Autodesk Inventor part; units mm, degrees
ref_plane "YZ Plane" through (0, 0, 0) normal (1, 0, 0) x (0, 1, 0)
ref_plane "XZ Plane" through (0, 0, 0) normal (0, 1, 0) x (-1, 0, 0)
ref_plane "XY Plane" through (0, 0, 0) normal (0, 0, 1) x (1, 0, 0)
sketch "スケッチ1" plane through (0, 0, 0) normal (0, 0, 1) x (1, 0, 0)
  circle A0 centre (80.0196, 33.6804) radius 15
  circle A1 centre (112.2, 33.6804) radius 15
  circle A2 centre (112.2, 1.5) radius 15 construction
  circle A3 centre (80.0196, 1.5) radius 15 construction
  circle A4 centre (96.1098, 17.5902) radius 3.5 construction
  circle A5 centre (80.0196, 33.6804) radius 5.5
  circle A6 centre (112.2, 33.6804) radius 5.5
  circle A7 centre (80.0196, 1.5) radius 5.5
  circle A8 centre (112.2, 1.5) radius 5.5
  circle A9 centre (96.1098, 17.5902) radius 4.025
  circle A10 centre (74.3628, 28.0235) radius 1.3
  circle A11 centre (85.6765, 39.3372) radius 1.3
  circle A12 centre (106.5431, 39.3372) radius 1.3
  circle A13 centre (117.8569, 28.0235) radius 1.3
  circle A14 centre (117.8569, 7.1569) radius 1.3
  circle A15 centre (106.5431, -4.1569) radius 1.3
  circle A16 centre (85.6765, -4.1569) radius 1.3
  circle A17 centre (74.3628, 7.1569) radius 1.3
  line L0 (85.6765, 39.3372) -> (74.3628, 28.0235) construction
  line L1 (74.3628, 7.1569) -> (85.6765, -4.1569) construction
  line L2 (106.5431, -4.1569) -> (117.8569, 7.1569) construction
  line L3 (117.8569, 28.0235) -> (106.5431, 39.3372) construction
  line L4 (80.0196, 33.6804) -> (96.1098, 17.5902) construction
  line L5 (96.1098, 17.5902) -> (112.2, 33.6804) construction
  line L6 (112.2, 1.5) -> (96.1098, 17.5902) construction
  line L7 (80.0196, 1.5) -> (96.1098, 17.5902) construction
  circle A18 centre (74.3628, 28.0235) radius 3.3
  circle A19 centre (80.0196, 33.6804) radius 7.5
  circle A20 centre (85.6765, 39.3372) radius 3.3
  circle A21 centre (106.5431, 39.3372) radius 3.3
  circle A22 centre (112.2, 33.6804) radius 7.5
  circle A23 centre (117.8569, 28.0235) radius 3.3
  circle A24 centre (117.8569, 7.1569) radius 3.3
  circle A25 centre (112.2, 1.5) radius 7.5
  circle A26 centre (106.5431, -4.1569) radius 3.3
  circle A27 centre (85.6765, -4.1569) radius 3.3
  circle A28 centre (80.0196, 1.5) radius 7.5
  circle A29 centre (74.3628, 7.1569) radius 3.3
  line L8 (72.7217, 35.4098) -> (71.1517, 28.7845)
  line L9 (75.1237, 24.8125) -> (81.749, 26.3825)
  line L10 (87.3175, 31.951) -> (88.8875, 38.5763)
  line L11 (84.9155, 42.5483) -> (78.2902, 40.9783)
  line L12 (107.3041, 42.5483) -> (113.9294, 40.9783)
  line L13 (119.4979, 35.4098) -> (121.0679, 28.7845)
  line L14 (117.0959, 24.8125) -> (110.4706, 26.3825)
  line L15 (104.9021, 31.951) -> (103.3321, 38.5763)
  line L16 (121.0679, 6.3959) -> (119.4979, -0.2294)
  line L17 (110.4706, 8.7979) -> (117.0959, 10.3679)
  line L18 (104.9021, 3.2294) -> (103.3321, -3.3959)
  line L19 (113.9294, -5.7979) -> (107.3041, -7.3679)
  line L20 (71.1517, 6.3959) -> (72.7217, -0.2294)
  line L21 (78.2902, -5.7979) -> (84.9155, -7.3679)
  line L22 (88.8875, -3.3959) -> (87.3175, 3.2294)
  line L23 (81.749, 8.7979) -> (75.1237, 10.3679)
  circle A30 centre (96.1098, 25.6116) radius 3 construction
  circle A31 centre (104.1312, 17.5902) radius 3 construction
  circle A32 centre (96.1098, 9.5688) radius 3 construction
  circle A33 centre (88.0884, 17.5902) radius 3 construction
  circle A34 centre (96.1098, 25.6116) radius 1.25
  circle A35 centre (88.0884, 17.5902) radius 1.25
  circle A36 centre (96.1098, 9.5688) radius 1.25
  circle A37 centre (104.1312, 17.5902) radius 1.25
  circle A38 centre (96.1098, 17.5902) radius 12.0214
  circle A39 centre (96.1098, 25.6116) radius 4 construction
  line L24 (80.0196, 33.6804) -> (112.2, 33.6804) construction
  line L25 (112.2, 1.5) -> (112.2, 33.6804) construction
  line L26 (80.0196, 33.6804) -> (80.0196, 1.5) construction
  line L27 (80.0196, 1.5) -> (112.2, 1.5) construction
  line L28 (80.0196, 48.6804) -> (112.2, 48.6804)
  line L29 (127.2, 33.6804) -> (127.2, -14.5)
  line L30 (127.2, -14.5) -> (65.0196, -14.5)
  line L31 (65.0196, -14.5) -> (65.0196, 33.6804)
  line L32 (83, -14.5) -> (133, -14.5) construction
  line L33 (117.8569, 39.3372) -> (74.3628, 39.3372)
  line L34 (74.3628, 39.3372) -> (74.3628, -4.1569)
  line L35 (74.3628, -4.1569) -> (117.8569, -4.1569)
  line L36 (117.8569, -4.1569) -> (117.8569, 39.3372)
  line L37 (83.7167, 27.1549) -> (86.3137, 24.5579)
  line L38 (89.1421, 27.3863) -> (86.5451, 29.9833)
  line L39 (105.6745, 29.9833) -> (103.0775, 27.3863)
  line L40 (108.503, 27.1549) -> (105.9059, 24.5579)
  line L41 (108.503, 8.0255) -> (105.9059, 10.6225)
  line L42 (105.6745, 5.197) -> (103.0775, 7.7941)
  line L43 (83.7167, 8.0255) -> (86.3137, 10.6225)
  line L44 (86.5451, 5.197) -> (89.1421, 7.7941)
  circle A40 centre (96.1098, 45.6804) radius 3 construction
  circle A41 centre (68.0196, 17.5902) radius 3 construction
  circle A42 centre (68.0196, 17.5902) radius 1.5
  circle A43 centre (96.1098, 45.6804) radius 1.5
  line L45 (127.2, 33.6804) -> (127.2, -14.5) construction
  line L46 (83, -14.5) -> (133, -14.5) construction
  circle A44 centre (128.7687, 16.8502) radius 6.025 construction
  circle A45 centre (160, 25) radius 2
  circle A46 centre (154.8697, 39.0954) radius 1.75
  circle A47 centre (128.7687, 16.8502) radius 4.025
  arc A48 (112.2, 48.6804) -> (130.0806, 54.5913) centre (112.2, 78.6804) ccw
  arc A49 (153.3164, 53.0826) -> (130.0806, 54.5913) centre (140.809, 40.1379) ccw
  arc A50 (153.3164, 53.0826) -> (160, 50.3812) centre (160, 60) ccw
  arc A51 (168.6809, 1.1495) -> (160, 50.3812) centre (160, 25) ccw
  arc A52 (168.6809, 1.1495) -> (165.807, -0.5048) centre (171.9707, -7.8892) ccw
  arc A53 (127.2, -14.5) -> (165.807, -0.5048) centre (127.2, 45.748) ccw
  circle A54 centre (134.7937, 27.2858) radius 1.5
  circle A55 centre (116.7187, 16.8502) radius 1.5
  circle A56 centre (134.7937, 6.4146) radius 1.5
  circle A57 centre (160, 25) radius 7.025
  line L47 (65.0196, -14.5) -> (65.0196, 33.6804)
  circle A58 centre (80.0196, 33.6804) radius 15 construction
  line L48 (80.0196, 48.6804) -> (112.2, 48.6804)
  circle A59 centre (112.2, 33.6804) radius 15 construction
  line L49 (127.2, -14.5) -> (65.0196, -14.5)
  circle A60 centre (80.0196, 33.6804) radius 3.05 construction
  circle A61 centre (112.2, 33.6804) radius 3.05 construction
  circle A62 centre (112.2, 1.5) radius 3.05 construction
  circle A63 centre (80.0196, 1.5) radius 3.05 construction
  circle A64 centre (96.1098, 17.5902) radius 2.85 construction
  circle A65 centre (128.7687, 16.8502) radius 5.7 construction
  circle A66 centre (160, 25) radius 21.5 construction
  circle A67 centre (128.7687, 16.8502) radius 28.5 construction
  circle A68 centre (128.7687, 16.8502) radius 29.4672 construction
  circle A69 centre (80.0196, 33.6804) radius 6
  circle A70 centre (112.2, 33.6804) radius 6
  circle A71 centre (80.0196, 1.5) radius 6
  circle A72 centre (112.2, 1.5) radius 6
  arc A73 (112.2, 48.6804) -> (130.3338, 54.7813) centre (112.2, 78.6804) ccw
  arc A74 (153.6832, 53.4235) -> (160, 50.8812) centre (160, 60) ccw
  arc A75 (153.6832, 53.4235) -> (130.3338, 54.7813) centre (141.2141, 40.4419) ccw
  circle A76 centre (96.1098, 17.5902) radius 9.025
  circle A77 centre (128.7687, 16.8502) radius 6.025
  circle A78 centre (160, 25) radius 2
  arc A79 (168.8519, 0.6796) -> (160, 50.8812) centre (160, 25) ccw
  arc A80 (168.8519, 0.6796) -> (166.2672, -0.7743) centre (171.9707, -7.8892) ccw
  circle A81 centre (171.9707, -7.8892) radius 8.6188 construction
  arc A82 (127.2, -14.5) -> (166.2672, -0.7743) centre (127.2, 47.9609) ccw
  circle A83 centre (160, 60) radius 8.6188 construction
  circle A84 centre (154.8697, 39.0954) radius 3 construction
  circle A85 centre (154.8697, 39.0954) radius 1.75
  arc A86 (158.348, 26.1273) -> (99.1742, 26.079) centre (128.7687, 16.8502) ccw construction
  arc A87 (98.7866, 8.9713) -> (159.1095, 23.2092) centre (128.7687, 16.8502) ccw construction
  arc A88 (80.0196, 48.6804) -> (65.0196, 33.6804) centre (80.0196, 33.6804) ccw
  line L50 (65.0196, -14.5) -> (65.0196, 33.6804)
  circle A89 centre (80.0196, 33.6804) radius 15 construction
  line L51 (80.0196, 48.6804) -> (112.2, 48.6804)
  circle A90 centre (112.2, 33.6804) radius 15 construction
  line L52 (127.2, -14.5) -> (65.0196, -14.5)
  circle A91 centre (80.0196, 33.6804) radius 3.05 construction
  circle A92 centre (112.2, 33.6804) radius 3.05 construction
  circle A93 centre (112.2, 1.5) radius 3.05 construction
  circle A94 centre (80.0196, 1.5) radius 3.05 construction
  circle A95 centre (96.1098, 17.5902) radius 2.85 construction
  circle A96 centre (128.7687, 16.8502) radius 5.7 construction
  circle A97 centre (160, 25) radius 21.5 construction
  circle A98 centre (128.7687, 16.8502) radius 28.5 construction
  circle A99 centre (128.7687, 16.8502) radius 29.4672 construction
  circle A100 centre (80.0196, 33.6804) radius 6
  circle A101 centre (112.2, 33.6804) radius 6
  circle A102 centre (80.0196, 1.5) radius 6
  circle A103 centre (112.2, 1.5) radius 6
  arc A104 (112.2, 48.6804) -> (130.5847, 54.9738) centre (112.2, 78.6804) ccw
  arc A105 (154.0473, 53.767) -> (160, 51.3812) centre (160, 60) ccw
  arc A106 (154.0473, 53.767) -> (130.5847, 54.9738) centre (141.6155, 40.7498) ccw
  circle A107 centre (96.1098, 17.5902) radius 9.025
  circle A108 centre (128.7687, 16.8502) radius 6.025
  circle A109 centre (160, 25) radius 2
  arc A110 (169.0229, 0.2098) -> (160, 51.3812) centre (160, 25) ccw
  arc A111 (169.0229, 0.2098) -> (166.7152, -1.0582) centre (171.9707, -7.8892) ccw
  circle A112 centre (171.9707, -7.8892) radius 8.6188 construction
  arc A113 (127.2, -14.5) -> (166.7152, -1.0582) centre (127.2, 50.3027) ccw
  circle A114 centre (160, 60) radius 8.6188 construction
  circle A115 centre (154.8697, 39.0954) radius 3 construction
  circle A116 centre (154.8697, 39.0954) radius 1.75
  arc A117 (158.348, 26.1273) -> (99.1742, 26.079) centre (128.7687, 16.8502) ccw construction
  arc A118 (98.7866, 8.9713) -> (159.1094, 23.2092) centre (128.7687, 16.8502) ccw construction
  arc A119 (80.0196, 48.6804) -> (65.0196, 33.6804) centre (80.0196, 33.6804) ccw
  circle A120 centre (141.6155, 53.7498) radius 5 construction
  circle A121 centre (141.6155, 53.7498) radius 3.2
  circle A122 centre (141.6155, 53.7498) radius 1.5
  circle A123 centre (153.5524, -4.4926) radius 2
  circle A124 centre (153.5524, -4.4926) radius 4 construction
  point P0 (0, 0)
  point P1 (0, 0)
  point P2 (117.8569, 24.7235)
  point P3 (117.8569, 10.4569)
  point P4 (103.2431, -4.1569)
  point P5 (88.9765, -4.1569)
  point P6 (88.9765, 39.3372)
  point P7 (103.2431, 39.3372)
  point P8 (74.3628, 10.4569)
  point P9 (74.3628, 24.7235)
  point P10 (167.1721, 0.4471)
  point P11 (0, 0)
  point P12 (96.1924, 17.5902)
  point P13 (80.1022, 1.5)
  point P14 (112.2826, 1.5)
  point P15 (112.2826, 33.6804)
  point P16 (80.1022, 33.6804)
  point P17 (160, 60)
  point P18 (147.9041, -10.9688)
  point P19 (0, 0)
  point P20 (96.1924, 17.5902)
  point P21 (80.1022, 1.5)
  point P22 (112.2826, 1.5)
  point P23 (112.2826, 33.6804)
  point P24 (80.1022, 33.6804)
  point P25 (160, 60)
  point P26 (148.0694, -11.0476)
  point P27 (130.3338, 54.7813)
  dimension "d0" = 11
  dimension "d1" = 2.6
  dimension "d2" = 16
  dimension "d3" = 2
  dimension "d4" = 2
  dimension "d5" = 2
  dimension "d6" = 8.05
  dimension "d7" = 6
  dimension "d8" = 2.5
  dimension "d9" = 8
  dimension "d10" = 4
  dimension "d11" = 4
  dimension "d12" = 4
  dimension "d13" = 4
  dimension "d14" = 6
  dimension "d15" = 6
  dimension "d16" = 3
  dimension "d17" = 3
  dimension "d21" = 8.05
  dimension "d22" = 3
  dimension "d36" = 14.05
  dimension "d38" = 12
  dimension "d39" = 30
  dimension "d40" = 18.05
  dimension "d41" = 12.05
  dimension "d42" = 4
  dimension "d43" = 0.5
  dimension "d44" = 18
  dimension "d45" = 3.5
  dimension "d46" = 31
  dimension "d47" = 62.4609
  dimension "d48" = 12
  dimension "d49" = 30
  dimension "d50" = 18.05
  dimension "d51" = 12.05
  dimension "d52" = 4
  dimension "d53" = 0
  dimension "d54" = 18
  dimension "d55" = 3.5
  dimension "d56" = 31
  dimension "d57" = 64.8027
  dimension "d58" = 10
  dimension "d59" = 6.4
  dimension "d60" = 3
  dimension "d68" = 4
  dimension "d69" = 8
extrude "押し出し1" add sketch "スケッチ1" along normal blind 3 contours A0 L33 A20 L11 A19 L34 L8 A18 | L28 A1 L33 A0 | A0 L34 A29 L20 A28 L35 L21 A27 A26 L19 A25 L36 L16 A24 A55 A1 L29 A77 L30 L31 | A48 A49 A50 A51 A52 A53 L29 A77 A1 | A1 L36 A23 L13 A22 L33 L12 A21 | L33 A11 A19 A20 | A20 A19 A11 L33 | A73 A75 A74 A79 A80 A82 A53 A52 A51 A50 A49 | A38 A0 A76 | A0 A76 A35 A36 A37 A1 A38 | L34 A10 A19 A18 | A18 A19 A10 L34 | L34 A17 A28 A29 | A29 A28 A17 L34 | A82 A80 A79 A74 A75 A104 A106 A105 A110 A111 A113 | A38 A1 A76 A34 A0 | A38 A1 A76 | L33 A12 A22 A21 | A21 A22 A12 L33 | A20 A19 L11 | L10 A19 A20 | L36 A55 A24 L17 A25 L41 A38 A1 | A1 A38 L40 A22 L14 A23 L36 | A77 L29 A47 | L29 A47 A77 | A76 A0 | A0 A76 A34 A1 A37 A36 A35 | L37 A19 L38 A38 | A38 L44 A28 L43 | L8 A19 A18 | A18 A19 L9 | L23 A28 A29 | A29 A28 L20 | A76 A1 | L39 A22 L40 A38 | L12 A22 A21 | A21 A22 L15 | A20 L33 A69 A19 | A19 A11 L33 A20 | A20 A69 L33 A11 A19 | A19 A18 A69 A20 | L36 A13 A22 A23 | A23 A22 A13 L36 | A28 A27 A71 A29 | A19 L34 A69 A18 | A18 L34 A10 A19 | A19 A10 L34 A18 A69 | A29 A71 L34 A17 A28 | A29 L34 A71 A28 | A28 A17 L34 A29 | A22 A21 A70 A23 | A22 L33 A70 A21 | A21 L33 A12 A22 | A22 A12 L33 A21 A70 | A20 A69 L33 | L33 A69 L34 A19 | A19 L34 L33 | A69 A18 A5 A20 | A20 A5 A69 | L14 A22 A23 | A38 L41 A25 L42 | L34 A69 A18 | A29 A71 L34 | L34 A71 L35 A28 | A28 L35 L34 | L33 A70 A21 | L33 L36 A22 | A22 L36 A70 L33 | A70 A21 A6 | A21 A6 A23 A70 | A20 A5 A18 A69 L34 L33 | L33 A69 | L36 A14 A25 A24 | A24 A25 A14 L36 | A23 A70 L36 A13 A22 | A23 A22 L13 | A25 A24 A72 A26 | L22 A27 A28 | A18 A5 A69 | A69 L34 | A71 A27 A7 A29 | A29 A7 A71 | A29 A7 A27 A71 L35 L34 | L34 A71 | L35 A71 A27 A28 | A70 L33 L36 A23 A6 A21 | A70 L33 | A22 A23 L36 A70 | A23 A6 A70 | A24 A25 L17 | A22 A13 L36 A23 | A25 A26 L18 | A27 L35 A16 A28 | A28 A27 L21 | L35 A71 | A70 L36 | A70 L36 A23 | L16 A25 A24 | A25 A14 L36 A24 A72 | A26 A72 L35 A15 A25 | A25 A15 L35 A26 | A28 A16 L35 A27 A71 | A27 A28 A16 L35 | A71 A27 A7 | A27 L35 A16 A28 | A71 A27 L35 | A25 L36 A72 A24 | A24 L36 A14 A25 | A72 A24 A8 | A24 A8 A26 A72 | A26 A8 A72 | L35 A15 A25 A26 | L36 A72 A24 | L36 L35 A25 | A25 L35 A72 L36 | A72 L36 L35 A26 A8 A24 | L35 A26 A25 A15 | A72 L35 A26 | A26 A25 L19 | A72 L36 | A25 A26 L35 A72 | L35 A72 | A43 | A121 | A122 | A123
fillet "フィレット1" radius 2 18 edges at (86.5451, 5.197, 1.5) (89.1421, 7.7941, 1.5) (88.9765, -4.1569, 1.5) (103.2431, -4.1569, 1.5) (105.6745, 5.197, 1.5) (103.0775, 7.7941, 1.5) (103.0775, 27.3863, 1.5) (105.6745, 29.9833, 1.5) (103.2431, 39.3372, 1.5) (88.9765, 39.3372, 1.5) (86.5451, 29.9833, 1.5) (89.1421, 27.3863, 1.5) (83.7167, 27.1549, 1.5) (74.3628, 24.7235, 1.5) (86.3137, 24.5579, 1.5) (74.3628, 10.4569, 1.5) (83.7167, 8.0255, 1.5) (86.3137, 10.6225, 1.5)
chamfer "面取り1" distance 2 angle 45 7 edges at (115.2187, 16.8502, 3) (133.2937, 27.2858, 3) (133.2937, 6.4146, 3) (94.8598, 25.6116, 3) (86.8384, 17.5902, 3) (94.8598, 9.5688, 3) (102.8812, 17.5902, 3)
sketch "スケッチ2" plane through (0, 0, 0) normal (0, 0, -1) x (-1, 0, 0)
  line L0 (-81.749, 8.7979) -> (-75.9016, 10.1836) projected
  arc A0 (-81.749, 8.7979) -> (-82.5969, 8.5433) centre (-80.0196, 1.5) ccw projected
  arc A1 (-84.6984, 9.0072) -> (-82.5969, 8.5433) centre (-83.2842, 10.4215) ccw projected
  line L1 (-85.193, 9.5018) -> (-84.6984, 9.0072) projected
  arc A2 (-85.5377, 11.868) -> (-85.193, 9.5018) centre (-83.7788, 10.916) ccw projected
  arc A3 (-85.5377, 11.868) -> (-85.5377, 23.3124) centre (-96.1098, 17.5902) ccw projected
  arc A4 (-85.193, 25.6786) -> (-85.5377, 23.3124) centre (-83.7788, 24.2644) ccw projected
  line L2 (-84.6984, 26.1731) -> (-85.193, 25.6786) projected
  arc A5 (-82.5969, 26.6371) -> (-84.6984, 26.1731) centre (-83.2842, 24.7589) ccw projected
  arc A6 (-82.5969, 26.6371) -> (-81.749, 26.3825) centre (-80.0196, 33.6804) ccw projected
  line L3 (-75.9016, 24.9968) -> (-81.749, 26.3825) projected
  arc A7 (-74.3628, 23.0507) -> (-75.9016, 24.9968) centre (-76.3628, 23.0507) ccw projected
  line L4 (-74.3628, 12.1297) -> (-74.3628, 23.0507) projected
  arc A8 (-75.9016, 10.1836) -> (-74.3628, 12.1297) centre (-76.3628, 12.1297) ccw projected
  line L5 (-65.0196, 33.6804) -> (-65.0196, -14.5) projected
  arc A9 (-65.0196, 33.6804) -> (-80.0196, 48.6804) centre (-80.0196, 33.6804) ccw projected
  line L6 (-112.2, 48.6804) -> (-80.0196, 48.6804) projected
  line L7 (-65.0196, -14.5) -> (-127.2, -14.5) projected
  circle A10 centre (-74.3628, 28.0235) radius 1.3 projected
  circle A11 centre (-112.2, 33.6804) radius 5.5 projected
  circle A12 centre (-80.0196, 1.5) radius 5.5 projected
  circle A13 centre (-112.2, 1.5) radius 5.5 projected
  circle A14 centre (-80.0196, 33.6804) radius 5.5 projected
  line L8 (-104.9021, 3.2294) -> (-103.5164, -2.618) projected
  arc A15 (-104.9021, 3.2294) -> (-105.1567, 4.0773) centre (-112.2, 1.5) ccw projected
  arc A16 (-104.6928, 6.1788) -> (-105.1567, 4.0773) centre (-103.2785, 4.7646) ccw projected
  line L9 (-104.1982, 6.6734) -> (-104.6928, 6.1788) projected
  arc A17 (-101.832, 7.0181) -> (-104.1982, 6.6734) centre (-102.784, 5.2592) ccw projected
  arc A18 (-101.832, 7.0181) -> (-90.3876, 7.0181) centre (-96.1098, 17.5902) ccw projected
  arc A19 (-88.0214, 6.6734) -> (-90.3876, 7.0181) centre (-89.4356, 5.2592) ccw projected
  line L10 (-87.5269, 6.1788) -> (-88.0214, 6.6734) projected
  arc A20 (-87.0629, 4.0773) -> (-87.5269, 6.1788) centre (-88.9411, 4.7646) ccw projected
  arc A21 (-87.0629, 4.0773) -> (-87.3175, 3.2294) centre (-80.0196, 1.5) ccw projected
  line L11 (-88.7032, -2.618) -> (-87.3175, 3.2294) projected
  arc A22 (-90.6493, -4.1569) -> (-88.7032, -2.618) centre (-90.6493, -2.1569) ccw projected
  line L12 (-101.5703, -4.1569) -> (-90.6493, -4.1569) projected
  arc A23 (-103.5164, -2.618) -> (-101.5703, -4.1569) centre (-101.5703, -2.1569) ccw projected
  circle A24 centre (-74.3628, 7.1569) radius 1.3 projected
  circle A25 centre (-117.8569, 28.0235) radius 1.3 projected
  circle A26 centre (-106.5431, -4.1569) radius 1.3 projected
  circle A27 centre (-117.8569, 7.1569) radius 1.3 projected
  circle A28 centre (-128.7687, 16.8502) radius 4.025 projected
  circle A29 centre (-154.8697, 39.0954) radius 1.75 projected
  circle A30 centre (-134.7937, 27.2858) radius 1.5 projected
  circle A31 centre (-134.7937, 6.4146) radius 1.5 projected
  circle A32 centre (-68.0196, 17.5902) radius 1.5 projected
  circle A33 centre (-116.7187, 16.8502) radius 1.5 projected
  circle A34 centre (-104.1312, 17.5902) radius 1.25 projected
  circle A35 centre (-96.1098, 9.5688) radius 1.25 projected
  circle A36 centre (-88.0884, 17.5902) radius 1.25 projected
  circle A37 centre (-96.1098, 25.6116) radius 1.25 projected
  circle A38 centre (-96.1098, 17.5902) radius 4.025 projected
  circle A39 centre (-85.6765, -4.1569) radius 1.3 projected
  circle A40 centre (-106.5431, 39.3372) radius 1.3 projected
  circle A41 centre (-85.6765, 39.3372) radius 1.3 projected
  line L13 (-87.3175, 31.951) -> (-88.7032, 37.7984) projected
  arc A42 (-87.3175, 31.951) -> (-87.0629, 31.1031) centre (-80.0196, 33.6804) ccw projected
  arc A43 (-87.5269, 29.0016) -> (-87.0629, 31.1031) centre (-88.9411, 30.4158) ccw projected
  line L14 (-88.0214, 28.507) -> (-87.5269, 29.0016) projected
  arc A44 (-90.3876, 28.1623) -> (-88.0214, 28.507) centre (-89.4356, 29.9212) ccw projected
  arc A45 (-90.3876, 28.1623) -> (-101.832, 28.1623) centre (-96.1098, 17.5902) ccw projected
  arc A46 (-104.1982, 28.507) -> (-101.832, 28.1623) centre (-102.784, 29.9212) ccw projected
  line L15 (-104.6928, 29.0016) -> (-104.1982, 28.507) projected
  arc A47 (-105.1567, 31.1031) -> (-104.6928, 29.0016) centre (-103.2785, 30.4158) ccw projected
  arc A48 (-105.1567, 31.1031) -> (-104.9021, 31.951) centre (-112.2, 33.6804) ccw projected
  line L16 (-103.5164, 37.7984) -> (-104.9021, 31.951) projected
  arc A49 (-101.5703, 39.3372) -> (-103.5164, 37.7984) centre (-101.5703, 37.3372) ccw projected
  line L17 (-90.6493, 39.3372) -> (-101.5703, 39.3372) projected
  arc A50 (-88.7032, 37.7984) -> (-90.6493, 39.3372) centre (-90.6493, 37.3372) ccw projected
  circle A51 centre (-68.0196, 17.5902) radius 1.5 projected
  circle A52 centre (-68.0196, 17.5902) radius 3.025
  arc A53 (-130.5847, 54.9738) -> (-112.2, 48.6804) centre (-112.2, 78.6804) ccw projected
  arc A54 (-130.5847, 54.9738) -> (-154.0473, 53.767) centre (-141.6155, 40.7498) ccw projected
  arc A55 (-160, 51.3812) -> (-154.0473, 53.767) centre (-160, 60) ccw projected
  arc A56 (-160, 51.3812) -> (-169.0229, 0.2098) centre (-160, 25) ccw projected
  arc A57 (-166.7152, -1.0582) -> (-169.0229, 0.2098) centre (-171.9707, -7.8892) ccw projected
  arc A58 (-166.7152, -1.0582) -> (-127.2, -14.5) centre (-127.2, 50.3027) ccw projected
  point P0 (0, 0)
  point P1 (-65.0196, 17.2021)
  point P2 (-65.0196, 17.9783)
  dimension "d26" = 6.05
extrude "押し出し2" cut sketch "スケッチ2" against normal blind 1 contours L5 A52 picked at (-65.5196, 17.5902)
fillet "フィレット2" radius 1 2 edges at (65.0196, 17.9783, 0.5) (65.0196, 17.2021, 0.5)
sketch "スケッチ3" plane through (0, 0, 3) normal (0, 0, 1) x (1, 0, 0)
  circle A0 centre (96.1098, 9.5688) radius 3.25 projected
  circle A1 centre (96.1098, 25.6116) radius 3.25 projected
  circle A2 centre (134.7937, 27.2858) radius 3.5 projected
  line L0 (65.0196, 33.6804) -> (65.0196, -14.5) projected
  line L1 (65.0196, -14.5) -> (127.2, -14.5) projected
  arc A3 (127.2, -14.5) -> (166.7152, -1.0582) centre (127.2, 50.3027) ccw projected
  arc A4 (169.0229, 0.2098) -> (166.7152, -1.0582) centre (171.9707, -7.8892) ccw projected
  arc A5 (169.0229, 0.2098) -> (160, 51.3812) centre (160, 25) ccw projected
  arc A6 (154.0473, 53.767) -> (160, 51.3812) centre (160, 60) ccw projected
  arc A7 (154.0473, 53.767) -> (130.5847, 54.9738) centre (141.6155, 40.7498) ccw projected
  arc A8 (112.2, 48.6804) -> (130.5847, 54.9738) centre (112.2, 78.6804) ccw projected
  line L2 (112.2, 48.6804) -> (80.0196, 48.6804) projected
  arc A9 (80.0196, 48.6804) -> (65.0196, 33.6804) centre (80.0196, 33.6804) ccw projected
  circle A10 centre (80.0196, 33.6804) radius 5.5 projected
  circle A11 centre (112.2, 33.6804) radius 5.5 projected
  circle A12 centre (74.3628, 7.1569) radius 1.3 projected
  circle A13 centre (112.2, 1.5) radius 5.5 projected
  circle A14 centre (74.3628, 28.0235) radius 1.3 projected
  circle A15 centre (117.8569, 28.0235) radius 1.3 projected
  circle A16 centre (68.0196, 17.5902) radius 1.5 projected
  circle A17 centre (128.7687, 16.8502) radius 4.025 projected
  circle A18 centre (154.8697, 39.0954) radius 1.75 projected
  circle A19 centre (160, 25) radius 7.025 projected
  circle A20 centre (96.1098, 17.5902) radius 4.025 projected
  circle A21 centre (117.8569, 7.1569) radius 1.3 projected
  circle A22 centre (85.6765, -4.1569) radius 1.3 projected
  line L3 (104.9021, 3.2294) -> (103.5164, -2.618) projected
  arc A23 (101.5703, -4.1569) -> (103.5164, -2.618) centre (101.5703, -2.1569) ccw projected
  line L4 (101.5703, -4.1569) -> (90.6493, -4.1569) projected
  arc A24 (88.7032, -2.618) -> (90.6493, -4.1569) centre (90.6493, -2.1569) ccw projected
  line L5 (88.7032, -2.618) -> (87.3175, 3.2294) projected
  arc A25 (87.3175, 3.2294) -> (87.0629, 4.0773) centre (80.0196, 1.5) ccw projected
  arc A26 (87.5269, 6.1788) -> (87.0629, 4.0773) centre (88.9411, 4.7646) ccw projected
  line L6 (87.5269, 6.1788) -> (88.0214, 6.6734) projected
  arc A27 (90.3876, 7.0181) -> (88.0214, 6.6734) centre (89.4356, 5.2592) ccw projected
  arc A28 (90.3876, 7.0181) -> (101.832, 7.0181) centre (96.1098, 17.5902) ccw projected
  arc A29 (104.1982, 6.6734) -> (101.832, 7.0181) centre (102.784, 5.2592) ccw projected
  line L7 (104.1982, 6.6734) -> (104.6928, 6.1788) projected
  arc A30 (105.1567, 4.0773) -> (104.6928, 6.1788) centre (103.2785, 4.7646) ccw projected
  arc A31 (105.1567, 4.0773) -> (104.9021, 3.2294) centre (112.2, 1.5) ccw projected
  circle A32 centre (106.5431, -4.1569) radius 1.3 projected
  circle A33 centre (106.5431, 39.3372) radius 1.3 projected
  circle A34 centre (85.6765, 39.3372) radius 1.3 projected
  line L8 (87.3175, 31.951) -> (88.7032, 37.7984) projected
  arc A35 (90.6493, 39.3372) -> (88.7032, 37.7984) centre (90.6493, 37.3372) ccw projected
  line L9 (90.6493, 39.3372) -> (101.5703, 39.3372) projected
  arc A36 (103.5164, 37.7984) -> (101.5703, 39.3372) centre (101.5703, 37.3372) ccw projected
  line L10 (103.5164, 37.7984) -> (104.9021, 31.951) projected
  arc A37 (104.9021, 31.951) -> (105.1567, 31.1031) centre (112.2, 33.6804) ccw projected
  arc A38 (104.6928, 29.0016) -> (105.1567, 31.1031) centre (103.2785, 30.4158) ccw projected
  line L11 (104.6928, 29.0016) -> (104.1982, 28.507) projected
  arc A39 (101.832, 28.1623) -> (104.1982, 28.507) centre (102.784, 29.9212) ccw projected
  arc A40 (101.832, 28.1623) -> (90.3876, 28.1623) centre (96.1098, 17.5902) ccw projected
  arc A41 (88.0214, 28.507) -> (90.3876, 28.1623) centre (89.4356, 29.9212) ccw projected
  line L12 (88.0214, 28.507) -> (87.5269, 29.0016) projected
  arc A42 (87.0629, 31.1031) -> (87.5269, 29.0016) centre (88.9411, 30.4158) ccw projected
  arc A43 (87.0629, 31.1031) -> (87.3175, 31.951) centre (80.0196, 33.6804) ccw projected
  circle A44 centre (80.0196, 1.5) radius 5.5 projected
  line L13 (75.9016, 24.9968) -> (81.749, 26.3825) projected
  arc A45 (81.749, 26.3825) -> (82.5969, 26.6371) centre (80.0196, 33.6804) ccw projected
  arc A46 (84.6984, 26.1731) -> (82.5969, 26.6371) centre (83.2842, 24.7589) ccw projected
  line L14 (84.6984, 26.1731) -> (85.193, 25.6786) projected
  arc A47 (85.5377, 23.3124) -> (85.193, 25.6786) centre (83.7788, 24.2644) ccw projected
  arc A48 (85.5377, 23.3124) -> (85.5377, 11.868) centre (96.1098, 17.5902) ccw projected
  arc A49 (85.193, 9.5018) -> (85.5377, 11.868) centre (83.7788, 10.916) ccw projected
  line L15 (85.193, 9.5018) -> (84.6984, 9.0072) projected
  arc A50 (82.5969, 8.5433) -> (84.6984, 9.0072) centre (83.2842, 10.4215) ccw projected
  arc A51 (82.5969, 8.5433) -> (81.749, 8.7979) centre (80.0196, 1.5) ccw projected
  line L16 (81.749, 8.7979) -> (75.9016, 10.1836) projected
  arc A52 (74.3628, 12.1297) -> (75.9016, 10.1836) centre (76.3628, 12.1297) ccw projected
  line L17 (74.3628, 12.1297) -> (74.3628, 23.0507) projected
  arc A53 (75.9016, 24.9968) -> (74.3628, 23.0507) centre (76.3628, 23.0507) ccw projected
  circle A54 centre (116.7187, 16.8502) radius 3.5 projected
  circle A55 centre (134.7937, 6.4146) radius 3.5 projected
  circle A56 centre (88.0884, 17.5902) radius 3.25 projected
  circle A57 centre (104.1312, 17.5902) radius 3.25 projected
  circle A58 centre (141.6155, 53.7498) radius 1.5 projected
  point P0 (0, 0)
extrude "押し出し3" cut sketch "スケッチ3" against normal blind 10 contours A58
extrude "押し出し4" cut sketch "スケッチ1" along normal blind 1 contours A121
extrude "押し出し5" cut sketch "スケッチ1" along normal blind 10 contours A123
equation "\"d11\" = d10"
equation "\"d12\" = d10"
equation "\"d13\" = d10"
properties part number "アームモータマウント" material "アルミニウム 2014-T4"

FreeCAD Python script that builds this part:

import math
import FreeCAD as App
import Part
import Sketcher

V = App.Vector
Q = App.Units.Quantity


def edges_at(feature, points):
    """Names of the edges that pass closest to the given points."""
    edges = feature.Shape.Edges
    near = lambda p: min(range(len(edges)), key=lambda i: edges[i].distToShape(Part.Vertex(*p))[0])
    return sorted({f"Edge{near(p) + 1}" for p in points})

doc = App.newDocument("Part")
body = doc.addObject("PartDesign::Body", "Body")

sketch1 = body.newObject("Sketcher::SketchObject", "Sketch")
sketch1.AttachmentSupport = (doc.getObject("XY_Plane"), [""])
sketch1.MapMode = "FlatFace"
sketch1.addGeometry(Part.ArcOfCircle(Part.Circle(V(80.0196, 33.6804, 0), V(0, 0, 1), 15), math.radians(90), math.radians(180)), False)
sketch1.addGeometry(Part.LineSegment(V(65.0196, 33.6804, 0), V(65.0196, -14.5, 0)), False)
sketch1.addGeometry(Part.LineSegment(V(65.0196, -14.5, 0), V(127.2, -14.5, 0)), False)
sketch1.addGeometry(Part.ArcOfCircle(Part.Circle(V(127.2, 50.3027, 0), V(0, 0, 1), 64.8027), math.radians(-90), math.radians(-52.426632)), False)
sketch1.addGeometry(Part.ArcOfCircle(Part.Circle(V(171.970204, -7.888106, 0), V(0, 0, 1), 8.61758), math.radians(109.99942), math.radians(127.575074)), False)
sketch1.addGeometry(Part.ArcOfCircle(Part.Circle(V(160, 25, 0), V(0, 0, 1), 26.381182), math.radians(-69.99999), math.radians(90)), False)
sketch1.addGeometry(Part.ArcOfCircle(Part.Circle(V(160, 60, 0), V(0, 0, 1), 8.6188), math.radians(-133.682294), math.radians(-90)), False)
sketch1.addGeometry(Part.ArcOfCircle(Part.Circle(V(141.6155, 40.7498, 0), V(0, 0, 1), 17.999921), math.radians(46.317735), math.radians(127.793799)), False)
sketch1.addGeometry(Part.ArcOfCircle(Part.Circle(V(112.2, 78.6804, 0), V(0, 0, 1), 30), math.radians(-52.810047), math.radians(-52.206072)), False)
sketch1.addGeometry(Part.ArcOfCircle(Part.Circle(V(112.2, 78.6804, 0), V(0, 0, 1), 30), math.radians(-53.414634), math.radians(-52.810047)), False)
sketch1.addGeometry(Part.ArcOfCircle(Part.Circle(V(112.2, 78.6804, 0), V(0, 0, 1), 30), math.radians(-90), math.radians(-53.414634)), False)
sketch1.addGeometry(Part.LineSegment(V(112.2, 48.6804, 0), V(80.0196, 48.6804, 0)), False)
sketch1.addGeometry(Part.LineSegment(V(88.9765, 39.3372, 0), V(103.2431, 39.3372, 0)), False)
sketch1.addGeometry(Part.ArcOfCircle(Part.Circle(V(106.5431, 39.3372, 0), V(0, 0, 1), 3.3), math.radians(180), math.radians(193.331289)), False)
sketch1.addGeometry(Part.LineSegment(V(103.3321, 38.5763, 0), V(104.9021, 31.951, 0)), False)
sketch1.addGeometry(Part.ArcOfCircle(Part.Circle(V(112.2, 33.6804, 0), V(0, 0, 1), 7.5), math.radians(-166.668407), math.radians(-150.465759)), False)
sketch1.addGeometry(Part.LineSegment(V(105.6745, 29.9833, 0), V(103.0775, 27.3863, 0)), False)
sketch1.addGeometry(Part.ArcOfCircle(Part.Circle(V(96.1098, 17.5902, 0), V(0, 0, 1), 12.0214), math.radians(54.57679), math.radians(125.42321)), False)
sketch1.addGeometry(Part.LineSegment(V(89.1421, 27.3863, 0), V(86.5451, 29.9833, 0)), False)
sketch1.addGeometry(Part.ArcOfCircle(Part.Circle(V(80.0196, 33.6804, 0), V(0, 0, 1), 7.5), math.radians(-29.534241), math.radians(-13.331593)), False)
sketch1.addGeometry(Part.LineSegment(V(87.3175, 31.951, 0), V(88.8875, 38.5763, 0)), False)
sketch1.addGeometry(Part.ArcOfCircle(Part.Circle(V(85.6765, 39.3372, 0), V(0, 0, 1), 3.3), math.radians(-13.331289), math.radians(0)), False)
sketch1.addGeometry(Part.ArcOfCircle(Part.Circle(V(74.3628, 28.0235, 0), V(0, 0, 1), 3.3), math.radians(-90), math.radians(-76.668711)), False)
sketch1.addGeometry(Part.LineSegment(V(75.1237, 24.8125, 0), V(81.749, 26.3825, 0)), False)
sketch1.addGeometry(Part.ArcOfCircle(Part.Circle(V(80.0196, 33.6804, 0), V(0, 0, 1), 7.5), math.radians(-76.668407), math.radians(-60.465759)), False)
sketch1.addGeometry(Part.LineSegment(V(83.7167, 27.1549, 0), V(86.3137, 24.5579, 0)), False)
sketch1.addGeometry(Part.ArcOfCircle(Part.Circle(V(96.1098, 17.5902, 0), V(0, 0, 1), 12.0214), math.radians(144.57679), math.radians(215.42321)), False)
sketch1.addGeometry(Part.LineSegment(V(86.3137, 10.6225, 0), V(83.7167, 8.0255, 0)), False)
sketch1.addGeometry(Part.ArcOfCircle(Part.Circle(V(80.0196, 1.5, 0), V(0, 0, 1), 7.5), math.radians(60.465759), math.radians(76.668407)), False)
sketch1.addGeometry(Part.LineSegment(V(81.749, 8.7979, 0), V(75.1237, 10.3679, 0)), False)
sketch1.addGeometry(Part.ArcOfCircle(Part.Circle(V(74.3628, 7.1569, 0), V(0, 0, 1), 3.3), math.radians(76.668711), math.radians(90)), False)
sketch1.addGeometry(Part.LineSegment(V(74.3628, 10.4569, 0), V(74.3628, 24.7235, 0)), False)
sketch1.addGeometry(Part.Circle(V(85.6765, 39.3372, 0), V(0, 0, 1), 1.3), False)
sketch1.addGeometry(Part.Circle(V(74.3628, 28.0235, 0), V(0, 0, 1), 1.3), False)
sketch1.addGeometry(Part.Circle(V(68.0196, 17.5902, 0), V(0, 0, 1), 1.5), False)
sketch1.addGeometry(Part.LineSegment(V(103.2431, -4.1569, 0), V(88.9765, -4.1569, 0)), False)
sketch1.addGeometry(Part.ArcOfCircle(Part.Circle(V(85.6765, -4.1569, 0), V(0, 0, 1), 3.3), math.radians(0), math.radians(13.332979)), False)
sketch1.addGeometry(Part.LineSegment(V(88.8875, -3.3959, 0), V(87.3175, 3.2294, 0)), False)
sketch1.addGeometry(Part.ArcOfCircle(Part.Circle(V(80.0196, 1.5, 0), V(0, 0, 1), 7.5), math.radians(13.331593), math.radians(29.533576)), False)
sketch1.addGeometry(Part.LineSegment(V(86.5451, 5.197, 0), V(89.1421, 7.7941, 0)), False)
sketch1.addGeometry(Part.ArcOfCircle(Part.Circle(V(96.1098, 17.5902, 0), V(0, 0, 1), 12.0214), math.radians(-125.42321), math.radians(-54.57679)), False)
sketch1.addGeometry(Part.LineSegment(V(103.0775, 7.7941, 0), V(105.6745, 5.197, 0)), False)
sketch1.addGeometry(Part.ArcOfCircle(Part.Circle(V(112.2, 1.5, 0), V(0, 0, 1), 7.5), math.radians(150.466424), math.radians(166.668407)), False)
sketch1.addGeometry(Part.LineSegment(V(104.9021, 3.2294, 0), V(103.3321, -3.3959, 0)), False)
sketch1.addGeometry(Part.ArcOfCircle(Part.Circle(V(106.5431, -4.1569, 0), V(0, 0, 1), 3.3), math.radians(166.667021), math.radians(180)), False)
sketch1.addGeometry(Part.Circle(V(116.7187, 16.8502, 0), V(0, 0, 1), 1.5), False)
sketch1.addGeometry(Part.Circle(V(74.3628, 7.1569, 0), V(0, 0, 1), 1.3), False)
sketch1.addGeometry(Part.Circle(V(85.6765, -4.1569, 0), V(0, 0, 1), 1.3), False)
sketch1.addGeometry(Part.Circle(V(106.5431, -4.1569, 0), V(0, 0, 1), 1.3), False)
sketch1.addGeometry(Part.Circle(V(117.8569, 7.1569, 0), V(0, 0, 1), 1.3), False)
sketch1.addGeometry(Part.Circle(V(160, 25, 0), V(0, 0, 1), 7.025), False)
sketch1.addGeometry(Part.Circle(V(154.8697, 39.0954, 0), V(0, 0, 1), 1.75), False)
sketch1.addGeometry(Part.Circle(V(134.7937, 6.4146, 0), V(0, 0, 1), 1.5), False)
sketch1.addGeometry(Part.Circle(V(134.7937, 27.2858, 0), V(0, 0, 1), 1.5), False)
sketch1.addGeometry(Part.Circle(V(128.7687, 16.8502, 0), V(0, 0, 1), 4.025), False)
sketch1.addGeometry(Part.Circle(V(117.8569, 28.0235, 0), V(0, 0, 1), 1.3), False)
sketch1.addGeometry(Part.Circle(V(106.5431, 39.3372, 0), V(0, 0, 1), 1.3), False)
sketch1.addGeometry(Part.Circle(V(80.0196, 33.6804, 0), V(0, 0, 1), 5.5), False)
sketch1.addGeometry(Part.Circle(V(88.0884, 17.5902, 0), V(0, 0, 1), 1.25), False)
sketch1.addGeometry(Part.Circle(V(96.1098, 9.5688, 0), V(0, 0, 1), 1.25), False)
sketch1.addGeometry(Part.Circle(V(104.1312, 17.5902, 0), V(0, 0, 1), 1.25), False)
sketch1.addGeometry(Part.Circle(V(80.0196, 1.5, 0), V(0, 0, 1), 5.5), False)
sketch1.addGeometry(Part.Circle(V(112.2, 1.5, 0), V(0, 0, 1), 5.5), False)
sketch1.addGeometry(Part.Circle(V(96.1098, 25.6116, 0), V(0, 0, 1), 1.25), False)
sketch1.addGeometry(Part.Circle(V(96.1098, 17.5902, 0), V(0, 0, 1), 4.025), False)
sketch1.addGeometry(Part.Circle(V(112.2, 33.6804, 0), V(0, 0, 1), 5.5), False)
sketch1.addConstraint(Sketcher.Constraint("Tangent", 0, 2, 1, 1))
sketch1.addConstraint(Sketcher.Constraint("Coincident", 1, 2, 2, 1))
sketch1.addConstraint(Sketcher.Constraint("Tangent", 2, 2, 3, 1))
sketch1.addConstraint(Sketcher.Constraint("Tangent", 3, 2, 4, 2))
sketch1.addConstraint(Sketcher.Constraint("Tangent", 4, 1, 5, 1))
sketch1.addConstraint(Sketcher.Constraint("Tangent", 5, 2, 6, 2))
sketch1.addConstraint(Sketcher.Constraint("Tangent", 6, 1, 7, 1))
sketch1.addConstraint(Sketcher.Constraint("Tangent", 7, 2, 8, 2))
sketch1.addConstraint(Sketcher.Constraint("Tangent", 8, 1, 9, 2))
sketch1.addConstraint(Sketcher.Constraint("Tangent", 9, 1, 10, 2))
sketch1.addConstraint(Sketcher.Constraint("Tangent", 10, 1, 11, 1))
sketch1.addConstraint(Sketcher.Constraint("Tangent", 11, 2, 0, 1))
sketch1.addConstraint(Sketcher.Constraint("Coincident", 12, 2, 13, 1))
sketch1.addConstraint(Sketcher.Constraint("Tangent", 13, 2, 14, 1))
sketch1.addConstraint(Sketcher.Constraint("Tangent", 14, 2, 15, 1))
sketch1.addConstraint(Sketcher.Constraint("Coincident", 15, 2, 16, 1))
sketch1.addConstraint(Sketcher.Constraint("Coincident", 16, 2, 17, 1))
sketch1.addConstraint(Sketcher.Constraint("Coincident", 17, 2, 18, 1))
sketch1.addConstraint(Sketcher.Constraint("Coincident", 18, 2, 19, 1))
sketch1.addConstraint(Sketcher.Constraint("Tangent", 19, 2, 20, 1))
sketch1.addConstraint(Sketcher.Constraint("Tangent", 20, 2, 21, 1))
sketch1.addConstraint(Sketcher.Constraint("Coincident", 21, 2, 12, 1))
sketch1.addConstraint(Sketcher.Constraint("Tangent", 22, 2, 23, 1))
sketch1.addConstraint(Sketcher.Constraint("Tangent", 23, 2, 24, 1))
sketch1.addConstraint(Sketcher.Constraint("Coincident", 24, 2, 25, 1))
sketch1.addConstraint(Sketcher.Constraint("Coincident", 25, 2, 26, 1))
sketch1.addConstraint(Sketcher.Constraint("Coincident", 26, 2, 27, 1))
sketch1.addConstraint(Sketcher.Constraint("Coincident", 27, 2, 28, 1))
sketch1.addConstraint(Sketcher.Constraint("Tangent", 28, 2, 29, 1))
sketch1.addConstraint(Sketcher.Constraint("Tangent", 29, 2, 30, 1))
sketch1.addConstraint(Sketcher.Constraint("Coincident", 30, 2, 31, 1))
sketch1.addConstraint(Sketcher.Constraint("Coincident", 31, 2, 22, 1))
sketch1.addConstraint(Sketcher.Constraint("Coincident", 35, 2, 36, 1))
sketch1.addConstraint(Sketcher.Constraint("Tangent", 36, 2, 37, 1))
sketch1.addConstraint(Sketcher.Constraint("Tangent", 37, 2, 38, 1))
sketch1.addConstraint(Sketcher.Constraint("Coincident", 38, 2, 39, 1))
sketch1.addConstraint(Sketcher.Constraint("Coincident", 39, 2, 40, 1))
sketch1.addConstraint(Sketcher.Constraint("Coincident", 40, 2, 41, 1))
sketch1.addConstraint(Sketcher.Constraint("Coincident", 41, 2, 42, 1))
sketch1.addConstraint(Sketcher.Constraint("Tangent", 42, 2, 43, 1))
sketch1.addConstraint(Sketcher.Constraint("Tangent", 43, 2, 44, 1))
sketch1.addConstraint(Sketcher.Constraint("Coincident", 44, 2, 35, 1))
sketch1.addConstraint(Sketcher.Constraint("Vertical", 1))
sketch1.addConstraint(Sketcher.Constraint("Horizontal", 2))
sketch1.addConstraint(Sketcher.Constraint("Horizontal", 11))
sketch1.addConstraint(Sketcher.Constraint("Horizontal", 12))
sketch1.addConstraint(Sketcher.Constraint("Vertical", 31))
sketch1.addConstraint(Sketcher.Constraint("Horizontal", 35))
sketch1.addConstraint(Sketcher.Constraint("Coincident", 10, 3, 8, 3))
sketch1.addConstraint(Sketcher.Constraint("Coincident", 19, 3, 0, 3))
sketch1.addConstraint(Sketcher.Constraint("Coincident", 24, 3, 0, 3))
sketch1.addConstraint(Sketcher.Constraint("Coincident", 26, 3, 17, 3))
sketch1.addConstraint(Sketcher.Constraint("Coincident", 32, 3, 21, 3))
sketch1.addConstraint(Sketcher.Constraint("Coincident", 33, 3, 22, 3))
sketch1.addConstraint(Sketcher.Constraint("Coincident", 38, 3, 28, 3))
sketch1.addConstraint(Sketcher.Constraint("Coincident", 40, 3, 17, 3))
sketch1.addConstraint(Sketcher.Constraint("Coincident", 46, 3, 30, 3))
sketch1.addConstraint(Sketcher.Constraint("Coincident", 47, 3, 36, 3))
sketch1.addConstraint(Sketcher.Constraint("Coincident", 48, 3, 44, 3))
sketch1.addConstraint(Sketcher.Constraint("Coincident", 50, 3, 5, 3))
sketch1.addConstraint(Sketcher.Constraint("Coincident", 56, 3, 13, 3))
sketch1.addConstraint(Sketcher.Constraint("Coincident", 57, 3, 0, 3))
sketch1.addConstraint(Sketcher.Constraint("Coincident", 61, 3, 28, 3))
sketch1.addConstraint(Sketcher.Constraint("Coincident", 62, 3, 42, 3))
sketch1.addConstraint(Sketcher.Constraint("Coincident", 64, 3, 17, 3))
sketch1.addConstraint(Sketcher.Constraint("Coincident", 65, 3, 15, 3))
sketch1.addConstraint(Sketcher.Constraint("Equal", 15, 19))
sketch1.addConstraint(Sketcher.Constraint("Equal", 13, 21))
sketch1.addConstraint(Sketcher.Constraint("Equal", 21, 22))
sketch1.addConstraint(Sketcher.Constraint("Equal", 19, 24))
sketch1.addConstraint(Sketcher.Constraint("Equal", 17, 26))
sketch1.addConstraint(Sketcher.Constraint("Equal", 24, 28))
sketch1.addConstraint(Sketcher.Constraint("Equal", 22, 30))
sketch1.addConstraint(Sketcher.Constraint("Equal", 32, 33))
sketch1.addConstraint(Sketcher.Constraint("Equal", 30, 36))
sketch1.addConstraint(Sketcher.Constraint("Equal", 28, 38))
sketch1.addConstraint(Sketcher.Constraint("Equal", 26, 40))
sketch1.addConstraint(Sketcher.Constraint("Equal", 38, 42))
sketch1.addConstraint(Sketcher.Constraint("Equal", 36, 44))
sketch1.addConstraint(Sketcher.Constraint("Equal", 34, 45))
sketch1.addConstraint(Sketcher.Constraint("Equal", 33, 46))
sketch1.addConstraint(Sketcher.Constraint("Equal", 46, 47))
sketch1.addConstraint(Sketcher.Constraint("Equal", 47, 48))
sketch1.addConstraint(Sketcher.Constraint("Equal", 48, 49))
sketch1.addConstraint(Sketcher.Constraint("Equal", 45, 52))
sketch1.addConstraint(Sketcher.Constraint("Equal", 52, 53))
sketch1.addConstraint(Sketcher.Constraint("Equal", 49, 55))
sketch1.addConstraint(Sketcher.Constraint("Equal", 55, 56))
sketch1.addConstraint(Sketcher.Constraint("Equal", 58, 59))
sketch1.addConstraint(Sketcher.Constraint("Equal", 59, 60))
sketch1.addConstraint(Sketcher.Constraint("Equal", 57, 61))
sketch1.addConstraint(Sketcher.Constraint("Equal", 61, 62))
sketch1.addConstraint(Sketcher.Constraint("Equal", 60, 63))
sketch1.addConstraint(Sketcher.Constraint("Equal", 54, 64))
sketch1.addConstraint(Sketcher.Constraint("Equal", 62, 65))
sketch1.addConstraint(Sketcher.Constraint("Perpendicular", 16, 18))
sketch1.addConstraint(Sketcher.Constraint("Perpendicular", 14, 23))
sketch1.addConstraint(Sketcher.Constraint("Parallel", 18, 25))
sketch1.addConstraint(Sketcher.Constraint("Perpendicular", 25, 27))
sketch1.addConstraint(Sketcher.Constraint("Perpendicular", 20, 29))
sketch1.addConstraint(Sketcher.Constraint("Perpendicular", 23, 37))
sketch1.addConstraint(Sketcher.Constraint("Parallel", 27, 39))
sketch1.addConstraint(Sketcher.Constraint("Perpendicular", 39, 41))
sketch1.addConstraint(Sketcher.Constraint("Perpendicular", 29, 43))
sketch1.addConstraint(Sketcher.Constraint("Horizontal", 0, 3, 15, 3))
sketch1.addConstraint(Sketcher.Constraint("Horizontal", 13, 3, 21, 3))
sketch1.addConstraint(Sketcher.Constraint("Horizontal", 26, 3, 34, 3))
sketch1.addConstraint(Sketcher.Constraint("Horizontal", 38, 3, 42, 3))
sketch1.addConstraint(Sketcher.Constraint("Horizontal", 36, 3, 44, 3))
sketch1.addConstraint(Sketcher.Constraint("Horizontal", 46, 3, 49, 3))
sketch1.addConstraint(Sketcher.Constraint("Horizontal", 45, 3, 54, 3))
sketch1.addConstraint(Sketcher.Constraint("Horizontal", 33, 3, 55, 3))
sketch1.addConstraint(Sketcher.Constraint("Horizontal", 40, 3, 58, 3))
sketch1.addConstraint(Sketcher.Constraint("Horizontal", 58, 3, 60, 3))
sketch1.addConstraint(Sketcher.Constraint("Horizontal", 56, 3, 12, 2))
sketch1.addConstraint(Sketcher.Constraint("Horizontal", 16, 2, 17, 2))
sketch1.addConstraint(Sketcher.Constraint("Horizontal", 15, 2, 18, 2))
sketch1.addConstraint(Sketcher.Constraint("Horizontal", 14, 2, 19, 2))
sketch1.addConstraint(Sketcher.Constraint("Horizontal", 48, 3, 35, 2))
sketch1.addConstraint(Sketcher.Constraint("Horizontal", 39, 2, 40, 2))
sketch1.addConstraint(Sketcher.Constraint("Horizontal", 38, 2, 41, 2))
sketch1.addConstraint(Sketcher.Constraint("Vertical", 5, 3, 6, 3))
sketch1.addConstraint(Sketcher.Constraint("Vertical", 10, 3, 15, 3))
sketch1.addConstraint(Sketcher.Constraint("Vertical", 24, 3, 28, 3))
sketch1.addConstraint(Sketcher.Constraint("Vertical", 22, 3, 30, 3))
sketch1.addConstraint(Sketcher.Constraint("Vertical", 32, 3, 36, 3))
sketch1.addConstraint(Sketcher.Constraint("Vertical", 15, 3, 42, 3))
sketch1.addConstraint(Sketcher.Constraint("Vertical", 52, 3, 53, 3))
sketch1.addConstraint(Sketcher.Constraint("Vertical", 49, 3, 55, 3))
sketch1.addConstraint(Sketcher.Constraint("Vertical", 40, 3, 59, 3))
sketch1.addConstraint(Sketcher.Constraint("Vertical", 59, 3, 63, 3))
sketch1.addConstraint(Sketcher.Constraint("Vertical", 25, 2, 26, 2))
sketch1.addConstraint(Sketcher.Constraint("Vertical", 24, 2, 27, 2))
sketch1.addConstraint(Sketcher.Constraint("Vertical", 46, 3, 30, 2))
sketch1.addConstraint(Sketcher.Constraint("Vertical", 18, 2, 38, 2))
sketch1.addConstraint(Sketcher.Constraint("Equal", 35, 31))
sketch1.addConstraint(Sketcher.Constraint("Equal", 20, 23))
sketch1.addConstraint(Sketcher.Constraint("Equal", 18, 25))
sketch1.addConstraint(Sketcher.Constraint("Diameter", 34, Q("3 mm")))
sketch1.addConstraint(Sketcher.Constraint("Diameter", 57, Q("11 mm")))
sketch1.addConstraint(Sketcher.Constraint("Radius", 0, Q("15 mm")))
sketch1.addConstraint(Sketcher.Constraint("Radius", 7, Q("18 mm")))
sketch1.addConstraint(Sketcher.Constraint("Radius", 8, Q("30 mm")))
sketch1.addConstraint(Sketcher.Constraint("Diameter", 32, Q("2.6 mm")))
sketch1.addConstraint(Sketcher.Constraint("Diameter", 51, Q("3.5 mm")))
sketch1.addConstraint(Sketcher.Constraint("Diameter", 58, Q("2.5 mm")))
sketch1.addConstraint(Sketcher.Constraint("Diameter", 50, Q("14.05 mm")))
sketch1.addConstraint(Sketcher.Constraint("Diameter", 54, Q("8.05 mm")))
sketch1.addConstraint(Sketcher.Constraint("Radius", 3, Q("64.8027 mm")))
sketch1.addConstraint(Sketcher.Constraint("Radius", 13, Q("3.3 mm")))
sketch1.addConstraint(Sketcher.Constraint("Radius", 15, Q("7.5 mm")))
sketch1.addConstraint(Sketcher.Constraint("DistanceX", -1, 1, 5, 3, Q("160 mm")))
sketch1.addConstraint(Sketcher.Constraint("DistanceY", -1, 1, 5, 3, Q("25 mm")))
sketch1.addConstraint(Sketcher.Constraint("DistanceY", -1, 1, 6, 3, Q("60 mm")))
sketch1.addConstraint(Sketcher.Constraint("DistanceX", -1, 1, 3, 3, Q("127.2 mm")))
sketch1.addConstraint(Sketcher.Constraint("DistanceX", -1, 1, 8, 3, Q("112.2 mm")))
sketch1.addConstraint(Sketcher.Constraint("DistanceY", -1, 1, 28, 3, Q("1.5 mm")))
sketch1.addConstraint(Sketcher.Constraint("DistanceY", 1, 2, -1, 1, Q("14.5 mm")))
sketch1.addConstraint(Sketcher.Constraint("Radius", 4, Q("8.6176 mm")))
sketch1.addConstraint(Sketcher.Constraint("Radius", 5, Q("26.3812 mm")))
sketch1.addConstraint(Sketcher.Constraint("Radius", 17, Q("12.0214 mm")))
sketch1.addConstraint(Sketcher.Constraint("DistanceX", 2, 1, 2, 2, Q("62.1804 mm")))
sketch1.addConstraint(Sketcher.Constraint("DistanceX", 12, 1, 12, 2, Q("14.2666 mm")))
sketch1.addConstraint(Sketcher.Constraint("DistanceY", 36, 3, -1, 1, Q("4.157 mm")))
sketch1.addConstraint(Sketcher.Constraint("DistanceX", -1, 1, 49, 3, Q("117.857 mm")))
sketch1.addConstraint(Sketcher.Constraint("DistanceX", -1, 1, 17, 2, Q("89.142 mm")))
sketch1.addConstraint(Sketcher.Constraint("DistanceX", -1, 1, 34, 3, Q("68.0196 mm")))
sketch1.addConstraint(Sketcher.Constraint("DistanceX", -1, 1, 45, 3, Q("116.7187 mm")))
sketch1.addConstraint(Sketcher.Constraint("DistanceY", -1, 1, 45, 3, Q("16.8502 mm")))
sketch1.addConstraint(Sketcher.Constraint("DistanceX", -1, 1, 51, 3, Q("154.8697 mm")))
sketch1.addConstraint(Sketcher.Constraint("DistanceY", -1, 1, 51, 3, Q("39.0954 mm")))
sketch1.addConstraint(Sketcher.Constraint("DistanceX", -1, 1, 52, 3, Q("134.7937 mm")))
sketch1.addConstraint(Sketcher.Constraint("DistanceY", -1, 1, 52, 3, Q("6.4146 mm")))
sketch1.addConstraint(Sketcher.Constraint("DistanceY", -1, 1, 53, 3, Q("27.2858 mm")))
sketch1.addConstraint(Sketcher.Constraint("DistanceX", -1, 1, 54, 3, Q("128.7687 mm")))
sketch1.addConstraint(Sketcher.Constraint("DistanceX", -1, 1, 58, 3, Q("88.0884 mm")))
sketch1.addConstraint(Sketcher.Constraint("DistanceY", -1, 1, 59, 3, Q("9.5688 mm")))
sketch1.addConstraint(Sketcher.Constraint("DistanceX", -1, 1, 60, 3, Q("104.1312 mm")))
sketch1.addConstraint(Sketcher.Constraint("DistanceY", -1, 1, 63, 3, Q("25.6116 mm")))
sketch1.addConstraint(Sketcher.Constraint("DistanceX", -1, 1, 8, 1, Q("130.3338 mm")))
sketch1.addConstraint(Sketcher.Constraint("DistanceX", -1, 1, 9, 1, Q("130.0806 mm")))
pad1 = body.newObject("PartDesign::Pad", "Pad")
pad1.Profile = sketch1
pad1.Length = 3
doc.recompute()

fillet = body.newObject("PartDesign::Fillet", "Fillet")
fillet.Base = (pad1, edges_at(pad1, [
    (86.545, 5.197, 1.5),
    (89.142, 7.794, 1.5),
    (88.977, -4.157, 1.5),
    (103.243, -4.157, 1.5),
    (105.674, 5.197, 1.5),
    (103.078, 7.794, 1.5),
    (103.078, 27.386, 1.5),
    (105.674, 29.983, 1.5),
    (103.243, 39.337, 1.5),
    (88.977, 39.337, 1.5),
    (86.545, 29.983, 1.5),
    (89.142, 27.386, 1.5),
    (83.717, 27.155, 1.5),
    (74.363, 24.724, 1.5),
    (86.314, 24.558, 1.5),
    (74.363, 10.457, 1.5),
    (83.717, 8.025, 1.5),
    (86.314, 10.623, 1.5),
]))
fillet.Radius = 2
doc.recompute()

chamfer = body.newObject("PartDesign::Chamfer", "Chamfer")
chamfer.Base = (fillet, edges_at(fillet, [
    (115.219, 16.85, 3),
    (133.294, 27.286, 3),
    (133.294, 6.415, 3),
    (94.86, 25.612, 3),
    (86.838, 17.59, 3),
    (94.86, 9.569, 3),
    (102.881, 17.59, 3),
]))
chamfer.Size = 2

sketch2 = body.newObject("Sketcher::SketchObject", "Sketch001")
sketch2.AttachmentSupport = (doc.getObject("XY_Plane"), [""])
sketch2.MapMode = "FlatFace"
sketch2.addGeometry(Part.LineSegment(V(65.0196, 17.202096, 0), V(65.0196, 17.978304, 0)), False)
sketch2.addGeometry(Part.ArcOfCircle(Part.Circle(V(68.0196, 17.5902, 0), V(0, 0, 1), 3.025), math.radians(-172.628693), math.radians(172.628693)), False)
sketch2.addGeometry(Part.Circle(V(68.0196, 17.5902, 0), V(0, 0, 1), 1.5), False)
sketch2.addConstraint(Sketcher.Constraint("Coincident", 0, 1, 1, 1))
sketch2.addConstraint(Sketcher.Constraint("Coincident", 1, 2, 0, 2))
sketch2.addConstraint(Sketcher.Constraint("Vertical", 0))
sketch2.addConstraint(Sketcher.Constraint("Coincident", 2, 3, 1, 3))
sketch2.addConstraint(Sketcher.Constraint("Diameter", 2, Q("3 mm")))
sketch2.addConstraint(Sketcher.Constraint("Radius", 1, Q("3.025 mm")))
sketch2.addConstraint(Sketcher.Constraint("DistanceX", 0, 1, 1, 3, Q("3 mm")))
sketch2.addConstraint(Sketcher.Constraint("DistanceY", -1, 1, 0, 1, Q("17.202 mm")))
sketch2.addConstraint(Sketcher.Constraint("DistanceX", -1, 1, 1, 3, Q("68.0196 mm")))
pocket1 = body.newObject("PartDesign::Pocket", "Pocket")
pocket1.Profile = sketch2
pocket1.Length = 1
pocket1.Reversed = True
doc.recompute()

fillet2 = body.newObject("PartDesign::Fillet", "Fillet001")
fillet2.Base = (pocket1, edges_at(pocket1, [(65.02, 17.978, 0.5), (65.02, 17.202, 0.5)]))
fillet2.Radius = 1

sketch3 = body.newObject("Sketcher::SketchObject", "Sketch002")
sketch3.AttachmentSupport = (doc.getObject("XY_Plane"), [""])
sketch3.MapMode = "FlatFace"
sketch3.AttachmentOffset = App.Placement(V(0, 0, 3), App.Rotation())
sketch3.addGeometry(Part.Circle(V(141.6155, 53.7498, 0), V(0, 0, 1), 1.5), False)
sketch3.addConstraint(Sketcher.Constraint("Diameter", 0, Q("3 mm")))
sketch3.addConstraint(Sketcher.Constraint("DistanceX", -1, 1, 0, 3, Q("141.6155 mm")))
sketch3.addConstraint(Sketcher.Constraint("DistanceY", -1, 1, 0, 3, Q("53.7498 mm")))
pocket2 = body.newObject("PartDesign::Pocket", "Pocket001")
pocket2.Profile = sketch3
pocket2.Length = 10

sketch4 = body.newObject("Sketcher::SketchObject", "Sketch003")
sketch4.AttachmentSupport = (doc.getObject("XY_Plane"), [""])
sketch4.MapMode = "FlatFace"
sketch4.addGeometry(Part.Circle(V(141.6155, 53.7498, 0), V(0, 0, 1), 3.2), False)
sketch4.addGeometry(Part.Circle(V(141.6155, 53.7498, 0), V(0, 0, 1), 1.5), False)
sketch4.addConstraint(Sketcher.Constraint("Coincident", 1, 3, 0, 3))
sketch4.addConstraint(Sketcher.Constraint("Diameter", 1, Q("3 mm")))
sketch4.addConstraint(Sketcher.Constraint("Diameter", 0, Q("6.4 mm")))
sketch4.addConstraint(Sketcher.Constraint("DistanceX", -1, 1, 0, 3, Q("141.6155 mm")))
sketch4.addConstraint(Sketcher.Constraint("DistanceY", -1, 1, 0, 3, Q("53.7498 mm")))
pocket3 = body.newObject("PartDesign::Pocket", "Pocket002")
pocket3.Profile = sketch4
pocket3.Length = 1
pocket3.Reversed = True

sketch5 = body.newObject("Sketcher::SketchObject", "Sketch004")
sketch5.AttachmentSupport = (doc.getObject("XY_Plane"), [""])
sketch5.MapMode = "FlatFace"
sketch5.addGeometry(Part.Circle(V(153.5524, -4.4926, 0), V(0, 0, 1), 2), False)
sketch5.addConstraint(Sketcher.Constraint("Diameter", 0, Q("4 mm")))
sketch5.addConstraint(Sketcher.Constraint("DistanceX", -1, 1, 0, 3, Q("153.5524 mm")))
sketch5.addConstraint(Sketcher.Constraint("DistanceY", 0, 3, -1, 1, Q("4.4926 mm")))
pocket4 = body.newObject("PartDesign::Pocket", "Pocket003")
pocket4.Profile = sketch5
pocket4.Length = 10
pocket4.Reversed = True

doc.recompute()
